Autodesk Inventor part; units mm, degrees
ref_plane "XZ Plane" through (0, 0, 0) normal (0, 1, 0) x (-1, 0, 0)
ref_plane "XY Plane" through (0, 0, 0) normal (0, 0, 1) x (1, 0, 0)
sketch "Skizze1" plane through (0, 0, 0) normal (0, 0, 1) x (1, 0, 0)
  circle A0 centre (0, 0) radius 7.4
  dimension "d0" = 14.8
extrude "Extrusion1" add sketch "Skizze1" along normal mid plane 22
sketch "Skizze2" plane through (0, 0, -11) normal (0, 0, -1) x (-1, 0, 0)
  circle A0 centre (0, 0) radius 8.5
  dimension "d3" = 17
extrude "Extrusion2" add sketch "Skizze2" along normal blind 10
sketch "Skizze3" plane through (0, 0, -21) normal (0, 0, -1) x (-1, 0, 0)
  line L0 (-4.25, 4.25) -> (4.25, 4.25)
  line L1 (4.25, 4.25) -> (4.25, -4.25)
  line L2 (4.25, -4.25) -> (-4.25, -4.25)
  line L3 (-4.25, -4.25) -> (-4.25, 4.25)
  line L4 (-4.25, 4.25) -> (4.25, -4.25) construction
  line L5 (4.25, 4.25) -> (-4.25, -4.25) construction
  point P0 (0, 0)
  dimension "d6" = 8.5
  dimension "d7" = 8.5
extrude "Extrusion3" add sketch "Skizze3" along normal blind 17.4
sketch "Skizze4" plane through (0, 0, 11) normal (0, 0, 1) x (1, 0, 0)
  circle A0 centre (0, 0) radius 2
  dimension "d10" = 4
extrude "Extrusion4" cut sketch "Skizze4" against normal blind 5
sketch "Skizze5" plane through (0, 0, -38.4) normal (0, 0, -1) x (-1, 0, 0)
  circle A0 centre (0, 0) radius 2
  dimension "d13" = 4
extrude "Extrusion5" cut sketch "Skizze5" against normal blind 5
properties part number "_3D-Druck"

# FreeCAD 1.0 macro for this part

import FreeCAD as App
import Part
import Sketcher

V = App.Vector
Q = App.Units.Quantity

doc = App.newDocument("Part")
params = doc.addObject("Spreadsheet::Sheet", "Params")
for row, (alias, value) in enumerate([
    ("sketch1_diameter", "14.8 mm"),
    ("pad1_length", "22 mm"),
    ("sketch2_diameter", "17 mm"),
    ("pad2_length", "10 mm"),
    ("sketch3_width", "8.5 mm"),
    ("pad3_length", "17.4 mm"),
    ("sketch4_diameter", "4 mm"),
    ("pocket1_length", "5 mm"),
    ("sketch5_diameter", "4 mm"),
    ("pocket2_length", "5 mm"),
], start=1):
    params.set(f"A{row}", alias)
    params.set(f"B{row}", "=" + value)
    params.setAlias(f"B{row}", alias)

body = doc.addObject("PartDesign::Body", "Body")

sketch1 = body.newObject("Sketcher::SketchObject", "Sketch")
sketch1.AttachmentSupport = (doc.getObject("XY_Plane"), [""])
sketch1.MapMode = "FlatFace"
sketch1.addGeometry(Part.Circle(V(0, 0, 0), V(0, 0, 1), 7.4), False)
sketch1.addConstraint([
    Sketcher.Constraint("Coincident", 0, 3, -1, 1),
    Sketcher.Constraint("Diameter", 0, Q("14.8 mm")),
])
sketch1.setExpression("Constraints[1]", "Params.sketch1_diameter")
pad1 = body.newObject("PartDesign::Pad", "Pad")
pad1.Profile = sketch1
pad1.setExpression("Length", "Params.pad1_length")
pad1.Midplane = True

sketch2 = body.newObject("Sketcher::SketchObject", "Sketch001")
sketch2.AttachmentSupport = (doc.getObject("XY_Plane"), [""])
sketch2.MapMode = "FlatFace"
sketch2.AttachmentOffset = App.Placement(V(0, 0, -11), App.Rotation())
sketch2.addGeometry(Part.Circle(V(0, 0, 0), V(0, 0, 1), 8.5), False)
sketch2.addConstraint([
    Sketcher.Constraint("Coincident", 0, 3, -1, 1),
    Sketcher.Constraint("Diameter", 0, Q("17 mm")),
])
sketch2.setExpression("Constraints[1]", "Params.sketch2_diameter")
pad2 = body.newObject("PartDesign::Pad", "Pad001")
pad2.Profile = sketch2
pad2.setExpression("Length", "Params.pad2_length")
pad2.Reversed = True

sketch3 = body.newObject("Sketcher::SketchObject", "Sketch002")
sketch3.AttachmentSupport = (doc.getObject("XY_Plane"), [""])
sketch3.MapMode = "FlatFace"
sketch3.AttachmentOffset = App.Placement(V(0, 0, -21), App.Rotation())
sketch3.addGeometry([
    Part.LineSegment(V(-4.25, 4.25, 0), V(4.25, 4.25, 0)),
    Part.LineSegment(V(4.25, 4.25, 0), V(4.25, -4.25, 0)),
    Part.LineSegment(V(4.25, -4.25, 0), V(-4.25, -4.25, 0)),
    Part.LineSegment(V(-4.25, -4.25, 0), V(-4.25, 4.25, 0)),
], False)
sketch3.addConstraint([
    Sketcher.Constraint("Coincident", 0, 2, 1, 1),
    Sketcher.Constraint("Coincident", 1, 2, 2, 1),
    Sketcher.Constraint("Coincident", 2, 2, 3, 1),
    Sketcher.Constraint("Coincident", 3, 2, 0, 1),
    Sketcher.Constraint("Horizontal", 0),
    Sketcher.Constraint("Vertical", 1),
    Sketcher.Constraint("Horizontal", 2),
    Sketcher.Constraint("Vertical", 3),
    Sketcher.Constraint("Symmetric", 0, 2, 2, 2, -1, 1),
    Sketcher.Constraint("Equal", 2, 1),
    Sketcher.Constraint("DistanceX", 0, 1, 0, 2, Q("8.5 mm")),
])
sketch3.setExpression("Constraints[10]", "Params.sketch3_width")
pad3 = body.newObject("PartDesign::Pad", "Pad002")
pad3.Profile = sketch3
pad3.setExpression("Length", "Params.pad3_length")
pad3.Reversed = True

sketch4 = body.newObject("Sketcher::SketchObject", "Sketch003")
sketch4.AttachmentSupport = (doc.getObject("XY_Plane"), [""])
sketch4.MapMode = "FlatFace"
sketch4.AttachmentOffset = App.Placement(V(0, 0, 11), App.Rotation())
sketch4.addGeometry(Part.Circle(V(0, 0, 0), V(0, 0, 1), 2), False)
sketch4.addConstraint([
    Sketcher.Constraint("Coincident", 0, 3, -1, 1),
    Sketcher.Constraint("Diameter", 0, Q("4 mm")),
])
sketch4.setExpression("Constraints[1]", "Params.sketch4_diameter")
pocket1 = body.newObject("PartDesign::Pocket", "Pocket")
pocket1.Profile = sketch4
pocket1.setExpression("Length", "Params.pocket1_length")

sketch5 = body.newObject("Sketcher::SketchObject", "Sketch004")
sketch5.AttachmentSupport = (doc.getObject("XY_Plane"), [""])
sketch5.MapMode = "FlatFace"
sketch5.AttachmentOffset = App.Placement(V(0, 0, -38.4), App.Rotation())
sketch5.addGeometry(Part.Circle(V(0, 0, 0), V(0, 0, 1), 2), False)
sketch5.addConstraint([
    Sketcher.Constraint("Coincident", 0, 3, -1, 1),
    Sketcher.Constraint("Diameter", 0, Q("4 mm")),
])
sketch5.setExpression("Constraints[1]", "Params.sketch5_diameter")
pocket2 = body.newObject("PartDesign::Pocket", "Pocket001")
pocket2.Profile = sketch5
pocket2.setExpression("Length", "Params.pocket2_length")
pocket2.Reversed = True

doc.recompute()
